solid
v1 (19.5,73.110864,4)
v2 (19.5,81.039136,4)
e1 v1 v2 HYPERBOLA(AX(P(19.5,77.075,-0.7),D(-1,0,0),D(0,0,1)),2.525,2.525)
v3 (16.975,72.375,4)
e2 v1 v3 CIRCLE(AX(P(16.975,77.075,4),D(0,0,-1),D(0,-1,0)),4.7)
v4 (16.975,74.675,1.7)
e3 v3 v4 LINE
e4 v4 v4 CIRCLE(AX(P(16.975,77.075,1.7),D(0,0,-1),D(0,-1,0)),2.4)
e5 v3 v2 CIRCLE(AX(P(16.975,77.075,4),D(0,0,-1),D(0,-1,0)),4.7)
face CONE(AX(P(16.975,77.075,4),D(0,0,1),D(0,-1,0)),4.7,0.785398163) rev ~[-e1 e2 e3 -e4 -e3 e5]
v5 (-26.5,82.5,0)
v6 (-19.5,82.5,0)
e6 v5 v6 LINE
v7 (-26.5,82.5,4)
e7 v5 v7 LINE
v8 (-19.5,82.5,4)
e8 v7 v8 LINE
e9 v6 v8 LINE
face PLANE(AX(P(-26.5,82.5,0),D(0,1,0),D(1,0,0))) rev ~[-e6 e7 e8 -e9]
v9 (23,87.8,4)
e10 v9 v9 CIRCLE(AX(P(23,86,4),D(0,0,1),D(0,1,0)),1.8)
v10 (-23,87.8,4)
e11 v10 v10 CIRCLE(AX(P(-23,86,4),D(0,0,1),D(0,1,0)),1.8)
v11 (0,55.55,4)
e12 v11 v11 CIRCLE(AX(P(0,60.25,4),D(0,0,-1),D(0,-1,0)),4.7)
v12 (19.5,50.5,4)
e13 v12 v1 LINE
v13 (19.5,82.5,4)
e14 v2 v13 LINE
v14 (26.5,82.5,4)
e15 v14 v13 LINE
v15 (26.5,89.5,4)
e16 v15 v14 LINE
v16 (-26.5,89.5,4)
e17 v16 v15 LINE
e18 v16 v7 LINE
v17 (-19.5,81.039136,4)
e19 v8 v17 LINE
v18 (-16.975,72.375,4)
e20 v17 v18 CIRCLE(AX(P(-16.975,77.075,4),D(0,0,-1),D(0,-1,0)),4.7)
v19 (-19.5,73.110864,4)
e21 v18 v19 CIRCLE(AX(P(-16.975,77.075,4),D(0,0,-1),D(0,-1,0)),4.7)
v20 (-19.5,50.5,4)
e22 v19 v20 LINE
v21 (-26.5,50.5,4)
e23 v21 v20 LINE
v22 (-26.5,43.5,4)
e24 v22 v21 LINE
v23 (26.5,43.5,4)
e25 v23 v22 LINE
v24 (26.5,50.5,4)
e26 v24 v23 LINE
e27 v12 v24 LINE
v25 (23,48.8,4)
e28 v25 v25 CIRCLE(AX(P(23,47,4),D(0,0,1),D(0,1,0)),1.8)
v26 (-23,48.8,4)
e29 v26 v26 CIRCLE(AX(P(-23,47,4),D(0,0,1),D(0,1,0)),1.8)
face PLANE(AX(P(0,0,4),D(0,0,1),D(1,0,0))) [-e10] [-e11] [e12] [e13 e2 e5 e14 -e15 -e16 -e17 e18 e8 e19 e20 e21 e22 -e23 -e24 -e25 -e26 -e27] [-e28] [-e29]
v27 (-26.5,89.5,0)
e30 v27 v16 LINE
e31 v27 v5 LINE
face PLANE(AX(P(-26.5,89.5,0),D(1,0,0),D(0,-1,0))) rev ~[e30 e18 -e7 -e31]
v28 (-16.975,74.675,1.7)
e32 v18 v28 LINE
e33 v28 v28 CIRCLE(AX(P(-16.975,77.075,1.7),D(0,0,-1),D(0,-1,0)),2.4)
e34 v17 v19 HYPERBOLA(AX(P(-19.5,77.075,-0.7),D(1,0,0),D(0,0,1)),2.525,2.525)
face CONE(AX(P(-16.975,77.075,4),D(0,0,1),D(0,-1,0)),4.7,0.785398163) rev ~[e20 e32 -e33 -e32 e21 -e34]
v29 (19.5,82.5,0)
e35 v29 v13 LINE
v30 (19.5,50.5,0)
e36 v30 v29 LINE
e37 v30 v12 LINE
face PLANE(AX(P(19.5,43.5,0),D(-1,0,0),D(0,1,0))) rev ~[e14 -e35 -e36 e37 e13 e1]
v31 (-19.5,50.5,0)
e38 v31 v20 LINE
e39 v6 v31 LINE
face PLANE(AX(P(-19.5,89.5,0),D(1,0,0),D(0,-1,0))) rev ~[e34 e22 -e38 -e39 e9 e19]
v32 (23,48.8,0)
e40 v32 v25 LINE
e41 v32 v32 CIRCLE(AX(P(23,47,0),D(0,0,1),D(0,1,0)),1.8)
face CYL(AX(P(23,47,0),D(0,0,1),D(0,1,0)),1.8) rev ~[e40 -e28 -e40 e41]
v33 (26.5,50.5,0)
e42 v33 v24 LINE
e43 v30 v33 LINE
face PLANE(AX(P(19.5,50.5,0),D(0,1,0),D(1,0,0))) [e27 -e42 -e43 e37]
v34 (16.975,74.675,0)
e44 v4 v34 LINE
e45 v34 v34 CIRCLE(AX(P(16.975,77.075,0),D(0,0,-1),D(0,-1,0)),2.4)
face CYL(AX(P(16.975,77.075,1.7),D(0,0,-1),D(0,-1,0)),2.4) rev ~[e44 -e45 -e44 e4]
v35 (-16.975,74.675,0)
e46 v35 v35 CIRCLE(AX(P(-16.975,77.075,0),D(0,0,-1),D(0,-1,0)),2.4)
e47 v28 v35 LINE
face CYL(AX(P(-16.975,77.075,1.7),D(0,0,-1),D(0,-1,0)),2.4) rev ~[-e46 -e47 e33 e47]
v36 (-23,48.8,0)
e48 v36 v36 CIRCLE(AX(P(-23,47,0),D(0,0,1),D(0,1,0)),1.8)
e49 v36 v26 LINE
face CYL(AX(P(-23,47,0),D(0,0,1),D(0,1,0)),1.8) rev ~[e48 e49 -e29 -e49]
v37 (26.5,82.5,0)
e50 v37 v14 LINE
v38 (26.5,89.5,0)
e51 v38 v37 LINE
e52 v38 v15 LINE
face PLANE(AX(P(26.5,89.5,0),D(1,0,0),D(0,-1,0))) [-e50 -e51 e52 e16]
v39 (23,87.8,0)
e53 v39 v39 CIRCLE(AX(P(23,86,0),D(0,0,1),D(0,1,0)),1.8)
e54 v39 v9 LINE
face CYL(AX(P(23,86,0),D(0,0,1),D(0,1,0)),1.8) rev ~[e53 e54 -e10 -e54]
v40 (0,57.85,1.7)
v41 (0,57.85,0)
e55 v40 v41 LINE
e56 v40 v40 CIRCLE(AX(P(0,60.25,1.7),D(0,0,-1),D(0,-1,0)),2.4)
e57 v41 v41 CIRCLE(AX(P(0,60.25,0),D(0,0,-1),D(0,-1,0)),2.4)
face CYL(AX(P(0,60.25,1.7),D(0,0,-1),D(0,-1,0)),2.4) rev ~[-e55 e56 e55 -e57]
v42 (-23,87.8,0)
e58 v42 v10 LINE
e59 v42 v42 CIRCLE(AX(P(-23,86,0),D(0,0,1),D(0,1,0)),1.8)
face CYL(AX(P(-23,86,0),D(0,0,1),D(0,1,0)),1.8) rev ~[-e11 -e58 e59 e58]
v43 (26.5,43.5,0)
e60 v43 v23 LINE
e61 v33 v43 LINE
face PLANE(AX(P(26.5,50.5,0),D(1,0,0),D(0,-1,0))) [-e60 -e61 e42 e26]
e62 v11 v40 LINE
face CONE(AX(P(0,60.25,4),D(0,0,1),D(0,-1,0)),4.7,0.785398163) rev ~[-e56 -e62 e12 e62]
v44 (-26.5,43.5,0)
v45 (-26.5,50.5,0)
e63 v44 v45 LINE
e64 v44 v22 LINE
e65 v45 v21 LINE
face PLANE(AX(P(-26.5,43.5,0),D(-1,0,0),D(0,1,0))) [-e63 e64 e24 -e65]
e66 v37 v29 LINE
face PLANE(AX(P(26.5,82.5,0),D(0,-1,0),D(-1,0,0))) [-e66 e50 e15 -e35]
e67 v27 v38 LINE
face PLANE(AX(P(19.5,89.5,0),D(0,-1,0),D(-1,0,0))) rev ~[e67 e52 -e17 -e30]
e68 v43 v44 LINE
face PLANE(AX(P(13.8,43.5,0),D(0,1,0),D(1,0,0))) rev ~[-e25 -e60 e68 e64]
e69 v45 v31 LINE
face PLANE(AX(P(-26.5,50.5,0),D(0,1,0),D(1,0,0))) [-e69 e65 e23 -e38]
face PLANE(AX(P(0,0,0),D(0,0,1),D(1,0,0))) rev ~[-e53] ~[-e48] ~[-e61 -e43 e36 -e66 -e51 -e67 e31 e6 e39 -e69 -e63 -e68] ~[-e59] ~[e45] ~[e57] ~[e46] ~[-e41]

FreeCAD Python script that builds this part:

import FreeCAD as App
import Part
import Sketcher
from FreeCAD import Vector

doc = App.newDocument("Part")
body = doc.addObject("PartDesign::Body", "Body")

# Sketch on XY plane
sketch1 = body.newObject("Sketcher::SketchObject", "Sketch")
sketch1.AttachmentSupport = (doc.getObject("XY_Plane"), [""])
sketch1.MapMode = "FlatFace"
sketch1.addGeometry([
    Part.LineSegment(Vector(20, 90, 0), Vector(-20, 90, 0)),
    Part.LineSegment(Vector(-20, 90, 0), Vector(-20, 44, 0)),
    Part.LineSegment(Vector(-20, 44, 0), Vector(20, 44, 0)),
    Part.LineSegment(Vector(20, 44, 0), Vector(20, 90, 0)),
], False)
sketch1.addConstraint([
    Sketcher.Constraint("Coincident", 0, 2, 1, 1),
    Sketcher.Constraint("Coincident", 1, 2, 2, 1),
    Sketcher.Constraint("Coincident", 2, 2, 3, 1),
    Sketcher.Constraint("Coincident", 3, 2, 0, 1),
    Sketcher.Constraint("Horizontal", 0),
    Sketcher.Constraint("Vertical", 1),
    Sketcher.Constraint("Horizontal", 2),
    Sketcher.Constraint("Vertical", 3),
    Sketcher.Constraint("DistanceX", 0, 2, 0, 1, 39.0),
    Sketcher.Constraint("DistanceY", 1, 2, 1, 1, 46.0),
    Sketcher.Constraint("DistanceX", 0, 2, -1, 1, 19.5),
    Sketcher.Constraint("DistanceY", -1, 1, 0, 2, 89.5),
])
pad1 = body.newObject("PartDesign::Pad", "Pad")
pad1.Profile = sketch1
pad1.Length = 4

# Sketch on XY plane
sketch2 = body.newObject("Sketcher::SketchObject", "Sketch001")
sketch2.AttachmentSupport = (doc.getObject("XY_Plane"), [""])
sketch2.MapMode = "FlatFace"
sketch2.AttachmentOffset = App.Placement(Vector(0, 0, 4), App.Rotation())
sketch2.addGeometry([
    Part.Circle(Vector(-17, 77.1, 0), Vector(0, 0, 1), 2.4),
    Part.Circle(Vector(17, 77.1, 0), Vector(0, 0, 1), 2.4),
    Part.Circle(Vector(0, 60.2, 0), Vector(0, 0, 1), 2.4),
], False)
sketch2.addConstraint([
    Sketcher.Constraint("Equal", 0, 1),
    Sketcher.Constraint("Equal", 1, 2),
    Sketcher.Constraint("Symmetric", 0, 3, 1, 3, -2),
    Sketcher.Constraint("PointOnObject", 2, 3, -2),
    Sketcher.Constraint("Diameter", 0, 4.8),
    Sketcher.Constraint("DistanceY", -1, 1, 2, 3, 60.25),
    Sketcher.Constraint("DistanceX", 0, 3, 1, 3, 33.95),
    Sketcher.Constraint("DistanceY", -1, 1, 0, 3, 77.075),
])
doc.recompute()
hole = body.newObject("PartDesign::Hole", "Hole")
hole.Profile = sketch2
hole.ThreadType = "None"
hole.Diameter = 4.8
hole.DepthType = "Dimension"
hole.Depth = 5
hole.DrillPoint = "Flat"
hole.HoleCutType = "Countersink"
hole.HoleCutDiameter = 9.4
hole.HoleCutCountersinkAngle = 90

# Sketch on XY plane
sketch3 = body.newObject("Sketcher::SketchObject", "Sketch002")
sketch3.AttachmentSupport = (doc.getObject("XY_Plane"), [""])
sketch3.MapMode = "FlatFace"
sketch3.addGeometry([
    Part.LineSegment(Vector(26, 82, 0), Vector(20, 82, 0)),  # 0
    Part.LineSegment(Vector(20, 82, 0), Vector(20, 90, 0)),  # 1
    Part.LineSegment(Vector(20, 90, 0), Vector(26, 90, 0)),  # 2
    Part.LineSegment(Vector(26, 90, 0), Vector(26, 82, 0)),  # 3
    Part.LineSegment(Vector(20, 44, 0), Vector(20, 50, 0)),  # 4
    Part.LineSegment(Vector(20, 50, 0), Vector(26, 50, 0)),  # 5
    Part.LineSegment(Vector(26, 50, 0), Vector(26, 44, 0)),  # 6
    Part.LineSegment(Vector(26, 44, 0), Vector(20, 44, 0)),  # 7
    Part.LineSegment(Vector(-26, 90, 0), Vector(-20, 90, 0)),  # 8
    Part.LineSegment(Vector(-20, 90, 0), Vector(-20, 82, 0)),  # 9
    Part.LineSegment(Vector(-20, 82, 0), Vector(-26, 82, 0)),  # 10
    Part.LineSegment(Vector(-26, 82, 0), Vector(-26, 90, 0)),  # 11
    Part.LineSegment(Vector(-20, 50, 0), Vector(-20, 44, 0)),  # 12
    Part.LineSegment(Vector(-20, 44, 0), Vector(-26, 44, 0)),  # 13
    Part.LineSegment(Vector(-26, 44, 0), Vector(-26, 50, 0)),  # 14
    Part.LineSegment(Vector(-26, 50, 0), Vector(-20, 50, 0)),  # 15
], False)
sketch3.addConstraint([
    Sketcher.Constraint("Coincident", 0, 2, 1, 1),
    Sketcher.Constraint("Coincident", 1, 2, 2, 1),
    Sketcher.Constraint("Coincident", 2, 2, 3, 1),
    Sketcher.Constraint("Coincident", 3, 2, 0, 1),
    Sketcher.Constraint("Coincident", 4, 2, 5, 1),
    Sketcher.Constraint("Coincident", 5, 2, 6, 1),
    Sketcher.Constraint("Coincident", 6, 2, 7, 1),
    Sketcher.Constraint("Coincident", 7, 2, 4, 1),
    Sketcher.Constraint("Coincident", 8, 2, 9, 1),
    Sketcher.Constraint("Coincident", 9, 2, 10, 1),
    Sketcher.Constraint("Coincident", 10, 2, 11, 1),
    Sketcher.Constraint("Coincident", 11, 2, 8, 1),
    Sketcher.Constraint("Coincident", 12, 2, 13, 1),
    Sketcher.Constraint("Coincident", 13, 2, 14, 1),
    Sketcher.Constraint("Coincident", 14, 2, 15, 1),
    Sketcher.Constraint("Coincident", 15, 2, 12, 1),
    Sketcher.Constraint("Horizontal", 0),
    Sketcher.Constraint("Vertical", 1),
    Sketcher.Constraint("Horizontal", 2),
    Sketcher.Constraint("Vertical", 3),
    Sketcher.Constraint("Vertical", 4),
    Sketcher.Constraint("Horizontal", 5),
    Sketcher.Constraint("Vertical", 6),
    Sketcher.Constraint("Horizontal", 7),
    Sketcher.Constraint("Horizontal", 8),
    Sketcher.Constraint("Vertical", 9),
    Sketcher.Constraint("Horizontal", 10),
    Sketcher.Constraint("Vertical", 11),
    Sketcher.Constraint("Vertical", 12),
    Sketcher.Constraint("Horizontal", 13),
    Sketcher.Constraint("Vertical", 14),
    Sketcher.Constraint("Horizontal", 15),
    Sketcher.Constraint("Symmetric", 1, 2, 8, 2, -2),
    Sketcher.Constraint("Symmetric", 3, 2, 10, 2, -2),
    Sketcher.Constraint("Symmetric", 7, 2, 12, 2, -2),
    Sketcher.Constraint("Symmetric", 5, 2, 14, 2, -2),
    Sketcher.Constraint("Vertical", 1, 2, 4, 2),
    Sketcher.Constraint("Vertical", 3, 2, 5, 2),
    Sketcher.Constraint("Equal", 15, 1),
    Sketcher.Constraint("Equal", 3, 4),
    Sketcher.Constraint("DistanceX", 0, 2, 0, 1, 7.0),
    Sketcher.Constraint("DistanceY", 4, 2, 0, 2, 32.0),
    Sketcher.Constraint("DistanceX", 8, 2, 1, 2, 39.0),
    Sketcher.Constraint("DistanceY", -1, 1, 0, 2, 82.5),
])
pad2 = body.newObject("PartDesign::Pad", "Pad001")
pad2.Profile = sketch3
pad2.Length = 4

# Sketch on XY plane
sketch4 = body.newObject("Sketcher::SketchObject", "Sketch003")
sketch4.AttachmentSupport = (doc.getObject("XY_Plane"), [""])
sketch4.MapMode = "FlatFace"
sketch4.addGeometry([
    Part.Circle(Vector(-23, 47, 0), Vector(0, 0, 1), 1.8),
    Part.Circle(Vector(23, 47, 0), Vector(0, 0, 1), 1.8),
    Part.Circle(Vector(23, 86, 0), Vector(0, 0, 1), 1.8),
    Part.Circle(Vector(-23, 86, 0), Vector(0, 0, 1), 1.8),
], False)
sketch4.addConstraint([
    Sketcher.Constraint("Equal", 0, 1),
    Sketcher.Constraint("Equal", 1, 2),
    Sketcher.Constraint("Equal", 2, 3),
    Sketcher.Constraint("Symmetric", 0, 3, 1, 3, -2),
    Sketcher.Constraint("Symmetric", 2, 3, 3, 3, -2),
    Sketcher.Constraint("Vertical", 1, 3, 2, 3),
    Sketcher.Constraint("Diameter", 0, 3.6),
    Sketcher.Constraint("DistanceX", 0, 3, -1, 1, 23.0),
    Sketcher.Constraint("DistanceY", -1, 1, 0, 3, 47.0),
    Sketcher.Constraint("DistanceY", -1, 1, 2, 3, 86.0),
])
doc.recompute()
hole2 = body.newObject("PartDesign::Hole", "Hole001")
hole2.Profile = sketch4
hole2.ThreadType = "None"
hole2.Diameter = 3.6
hole2.DepthType = "Dimension"
hole2.Depth = 5
hole2.DrillPoint = "Flat"
hole2.Reversed = True

doc.recompute()
